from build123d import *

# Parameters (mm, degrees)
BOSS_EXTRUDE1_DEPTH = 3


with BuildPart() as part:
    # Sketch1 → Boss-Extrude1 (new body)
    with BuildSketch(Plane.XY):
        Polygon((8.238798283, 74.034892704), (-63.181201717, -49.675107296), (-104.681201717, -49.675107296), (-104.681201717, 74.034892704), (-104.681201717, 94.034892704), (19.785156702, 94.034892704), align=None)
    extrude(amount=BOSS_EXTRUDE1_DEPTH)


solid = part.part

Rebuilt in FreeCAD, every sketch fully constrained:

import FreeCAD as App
import Part
import Sketcher
from FreeCAD import Vector
Q = App.Units.Quantity

doc = App.newDocument("Part")
params = doc.addObject("Spreadsheet::Sheet", "Params")
for row, (alias, value) in enumerate([
    ("sketch1_width", "41.5 mm"),
    ("sketch1_height", "143.71 mm"),
    ("pad1_length", "3 mm"),
], start=1):
    params.set(f"A{row}", alias)
    params.set(f"B{row}", "=" + value)
    params.setAlias(f"B{row}", alias)

body = doc.addObject("PartDesign::Body", "Body")

# Sketch on XY plane
sketch1 = body.newObject("Sketcher::SketchObject", "Sketch")
sketch1.AttachmentSupport = (doc.getObject("XY_Plane"), [""])
sketch1.MapMode = "FlatFace"
sketch1.addGeometry([
    Part.LineSegment(Vector(-63, -50, 0), Vector(8, 74, 0)),  # 0
    Part.LineSegment(Vector(8, 74, 0), Vector(20, 94, 0)),  # 1
    Part.LineSegment(Vector(20, 94, 0), Vector(-105, 94, 0)),  # 2
    Part.LineSegment(Vector(-105, 94, 0), Vector(-105, -50, 0)),  # 3
    Part.LineSegment(Vector(-105, -50, 0), Vector(-63, -50, 0)),  # 4
], False)
sketch1.addConstraint([
    Sketcher.Constraint("Coincident", 0, 2, 1, 1),
    Sketcher.Constraint("Coincident", 1, 2, 2, 1),
    Sketcher.Constraint("Coincident", 2, 2, 3, 1),
    Sketcher.Constraint("Coincident", 3, 2, 4, 1),
    Sketcher.Constraint("Coincident", 4, 2, 0, 1),
    Sketcher.Constraint("Horizontal", 2),
    Sketcher.Constraint("Vertical", 3),
    Sketcher.Constraint("Horizontal", 4),
    Sketcher.Constraint("Parallel", 0, 1),
    Sketcher.Constraint("DistanceX", 4, 1, 4, 2, Q("41.5 mm")),
    Sketcher.Constraint("DistanceY", 0, 2, 1, 2, Q("20 mm")),
    Sketcher.Constraint("DistanceY", 3, 2, 3, 1, Q("143.71 mm")),
    Sketcher.Constraint("DistanceX", 2, 2, 0, 2, Q("112.92 mm")),
    Sketcher.Constraint("DistanceX", -1, 1, 0, 2, Q("8.238798 mm")),
    Sketcher.Constraint("DistanceY", -1, 1, 0, 2, Q("74.034893 mm")),
])
sketch1.setExpression("Constraints[9]", "Params.sketch1_width")
sketch1.setExpression("Constraints[11]", "Params.sketch1_height")
pad1 = body.newObject("PartDesign::Pad", "Pad")
pad1.Profile = sketch1
pad1.setExpression("Length", "Params.pad1_length")

doc.recompute()
